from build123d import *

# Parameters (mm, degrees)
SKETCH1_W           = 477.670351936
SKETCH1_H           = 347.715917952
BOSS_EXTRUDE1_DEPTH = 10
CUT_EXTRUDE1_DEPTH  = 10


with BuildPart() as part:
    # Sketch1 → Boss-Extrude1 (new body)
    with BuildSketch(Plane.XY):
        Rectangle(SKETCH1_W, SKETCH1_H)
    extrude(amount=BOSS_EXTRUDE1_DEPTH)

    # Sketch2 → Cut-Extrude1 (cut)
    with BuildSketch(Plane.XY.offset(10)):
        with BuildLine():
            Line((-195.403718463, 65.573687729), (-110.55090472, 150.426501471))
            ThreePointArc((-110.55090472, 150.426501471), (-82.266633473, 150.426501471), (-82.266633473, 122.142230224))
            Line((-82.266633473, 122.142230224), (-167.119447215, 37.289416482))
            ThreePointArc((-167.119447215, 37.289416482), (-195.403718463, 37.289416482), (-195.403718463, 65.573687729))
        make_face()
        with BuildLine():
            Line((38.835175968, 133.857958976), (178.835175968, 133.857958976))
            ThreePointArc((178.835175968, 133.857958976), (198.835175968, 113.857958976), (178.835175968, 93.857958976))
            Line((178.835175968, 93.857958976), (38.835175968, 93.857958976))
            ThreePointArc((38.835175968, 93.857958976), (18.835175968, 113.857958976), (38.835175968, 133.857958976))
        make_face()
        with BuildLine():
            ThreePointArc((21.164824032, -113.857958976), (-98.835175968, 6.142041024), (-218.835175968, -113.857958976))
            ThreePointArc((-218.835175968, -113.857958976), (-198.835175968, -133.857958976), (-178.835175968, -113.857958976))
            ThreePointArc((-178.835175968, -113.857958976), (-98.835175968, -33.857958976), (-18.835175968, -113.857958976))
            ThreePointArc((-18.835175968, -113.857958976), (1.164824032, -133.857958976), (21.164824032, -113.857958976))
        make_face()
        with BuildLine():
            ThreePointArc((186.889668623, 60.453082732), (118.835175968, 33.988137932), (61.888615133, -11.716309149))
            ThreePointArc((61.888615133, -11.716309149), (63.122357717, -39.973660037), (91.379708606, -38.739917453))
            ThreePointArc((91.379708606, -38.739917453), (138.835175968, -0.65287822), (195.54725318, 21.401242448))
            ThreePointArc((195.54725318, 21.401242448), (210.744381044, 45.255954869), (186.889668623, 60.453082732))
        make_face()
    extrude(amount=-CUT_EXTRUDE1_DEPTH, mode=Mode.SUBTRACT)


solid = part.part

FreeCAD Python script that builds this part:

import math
import FreeCAD as App
import Part
import Sketcher
Q = App.Units.Quantity


def add_polygon(sketch, points):
    """Adds a closed chain of lines whose ends are joined by coincident constraints."""
    first, n = sketch.GeometryCount, len(points)
    for a, b in zip(points, points[1:] + points[:1]):
        sketch.addGeometry(Part.LineSegment(App.Vector(*a, 0), App.Vector(*b, 0)), False)
    for i in range(n):
        sketch.addConstraint(Sketcher.Constraint("Coincident", first + i, 2, first + (i + 1) % n, 1))

doc = App.newDocument("Part")
body = doc.addObject("PartDesign::Body", "Body")

sketch1 = body.newObject("Sketcher::SketchObject", "Sketch")
sketch1.AttachmentSupport = (doc.getObject("XY_Plane"), [""])
sketch1.MapMode = "FlatFace"
add_polygon(sketch1, [(-239, 174), (-239, -174), (239, -174), (239, 174)])
sketch1.addConstraint([
    Sketcher.Constraint("Vertical", 0),
    Sketcher.Constraint("Horizontal", 1),
    Sketcher.Constraint("Vertical", 2),
    Sketcher.Constraint("Horizontal", 3),
    Sketcher.Constraint("Symmetric", 0, 2, 2, 2, -1, 1),
    Sketcher.Constraint("DistanceX", 1, 1, 1, 2, 477.670352),
    Sketcher.Constraint("DistanceY", 0, 2, 0, 1, 347.715918),
])
pad1 = body.newObject("PartDesign::Pad", "Pad")
pad1.Profile = sketch1
pad1.Length = 10

sketch2 = body.newObject("Sketcher::SketchObject", "Sketch001")
sketch2.AttachmentSupport = (doc.getObject("XY_Plane"), [""])
sketch2.MapMode = "FlatFace"
sketch2.AttachmentOffset = App.Placement(App.Vector(0, 0, 10), App.Rotation())
sketch2.addGeometry([
    Part.LineSegment(App.Vector(-111, 150, 0), App.Vector(-195, 66, 0)),
    Part.ArcOfCircle(Part.Circle(App.Vector(-181, 51, 0), App.Vector(0, 0, 1), 20), math.radians(135), math.radians(315)),
    Part.LineSegment(App.Vector(-167, 37, 0), App.Vector(-82, 122, 0)),
    Part.ArcOfCircle(Part.Circle(App.Vector(-96, 136, 0), App.Vector(0, 0, 1), 20), math.radians(-45), math.radians(135)),
    Part.LineSegment(App.Vector(179, 134, 0), App.Vector(39, 134, 0)),
    Part.ArcOfCircle(Part.Circle(App.Vector(39, 114, 0), App.Vector(0, 0, 1), 20), math.radians(90), math.radians(270)),
    Part.LineSegment(App.Vector(39, 94, 0), App.Vector(179, 94, 0)),
    Part.ArcOfCircle(Part.Circle(App.Vector(179, 114, 0), App.Vector(0, 0, 1), 20), math.radians(-90), math.radians(90)),
    Part.ArcOfCircle(Part.Circle(App.Vector(-99, -114, 0), App.Vector(0, 0, 1), 120), math.radians(0), math.radians(180)),
    Part.ArcOfCircle(Part.Circle(App.Vector(-199, -114, 0), App.Vector(0, 0, 1), 20), math.radians(180), math.radians(360)),
    Part.ArcOfCircle(Part.Circle(App.Vector(-99, -114, 0), App.Vector(0, 0, 1), 80), math.radians(0), math.radians(180)),
    Part.ArcOfCircle(Part.Circle(App.Vector(1, -114, 0), App.Vector(0, 0, 1), 20), math.radians(180), math.radians(360)),
    Part.ArcOfCircle(Part.Circle(App.Vector(239, -174, 0), App.Vector(0, 0, 1), 240), math.radians(102), math.radians(138)),
    Part.ArcOfCircle(Part.Circle(App.Vector(77, -25, 0), App.Vector(0, 0, 1), 20), math.radians(138), math.radians(318)),
    Part.ArcOfCircle(Part.Circle(App.Vector(239, -174, 0), App.Vector(0, 0, 1), 200), math.radians(103), math.radians(137)),
    Part.ArcOfCircle(Part.Circle(App.Vector(191, 41, 0), App.Vector(0, 0, 1), 20), math.radians(-78), math.radians(103)),
], False)
sketch2.addConstraint([
    Sketcher.Constraint("Tangent", 0, 2, 1, 1),
    Sketcher.Constraint("Tangent", 1, 2, 2, 1),
    Sketcher.Constraint("Tangent", 2, 2, 3, 1),
    Sketcher.Constraint("Tangent", 3, 2, 0, 1),
    Sketcher.Constraint("Tangent", 4, 2, 5, 1),
    Sketcher.Constraint("Tangent", 5, 2, 6, 1),
    Sketcher.Constraint("Tangent", 6, 2, 7, 1),
    Sketcher.Constraint("Tangent", 7, 2, 4, 1),
    Sketcher.Constraint("Tangent", 8, 2, 9, 1),
    Sketcher.Constraint("Tangent", 9, 2, 10, 2),
    Sketcher.Constraint("Tangent", 10, 1, 11, 1),
    Sketcher.Constraint("Tangent", 11, 2, 8, 1),
    Sketcher.Constraint("Tangent", 12, 2, 13, 1),
    Sketcher.Constraint("Tangent", 13, 2, 14, 2),
    Sketcher.Constraint("Tangent", 14, 1, 15, 1),
    Sketcher.Constraint("Tangent", 15, 2, 12, 1),
    Sketcher.Constraint("Horizontal", 4),
    Sketcher.Constraint("Horizontal", 6),
    Sketcher.Constraint("Coincident", 10, 3, 8, 3),
    Sketcher.Constraint("Coincident", 14, 3, 12, 3),
    Sketcher.Constraint("Equal", 1, 3),
    Sketcher.Constraint("Equal", 3, 5),
    Sketcher.Constraint("Equal", 7, 9),
    Sketcher.Constraint("Equal", 11, 13),
    Sketcher.Constraint("Horizontal", 8, 3, 9, 3),
    Sketcher.Constraint("Horizontal", 10, 3, 11, 3),
    Sketcher.Constraint("Radius", 1, 20.0),
    Sketcher.Constraint("Radius", 8, 120.0),
    Sketcher.Constraint("Radius", 12, 240.0),
    Sketcher.Constraint("DistanceX", 4, 2, 4, 1, 140.0),
    Sketcher.Constraint("Angle", 0, Q("-135 deg")),
    Sketcher.Constraint("Distance", 0, 120.0),
    Sketcher.Constraint("DistanceY", 12, 3, 11, 3, 60.0),
    Sketcher.Constraint("DistanceX", 7, 3, 12, 3, 60.0),
    Sketcher.Constraint("DistanceY", -1, 1, 3, 2, 150.426501),
    Sketcher.Constraint("DistanceX", 13, 3, 15, 3, 114.584299),
    Sketcher.Constraint("DistanceX", 3, 3, -1, 1, 96.408769),
    Sketcher.Constraint("DistanceY", -1, 1, 5, 3, 113.857959),
    Sketcher.Constraint("DistanceY", 8, 3, -1, 1, 113.857959),
    Sketcher.Constraint("DistanceX", -1, 1, 13, 3, 76.634162),
    Sketcher.Constraint("DistanceY", 12, 2, -1, 1, 11.716309),
    Sketcher.Constraint("DistanceX", 8, 3, 5, 3, 137.670352),
])
pocket1 = body.newObject("PartDesign::Pocket", "Pocket")
pocket1.Profile = sketch2
pocket1.Length = 10

doc.recompute()
